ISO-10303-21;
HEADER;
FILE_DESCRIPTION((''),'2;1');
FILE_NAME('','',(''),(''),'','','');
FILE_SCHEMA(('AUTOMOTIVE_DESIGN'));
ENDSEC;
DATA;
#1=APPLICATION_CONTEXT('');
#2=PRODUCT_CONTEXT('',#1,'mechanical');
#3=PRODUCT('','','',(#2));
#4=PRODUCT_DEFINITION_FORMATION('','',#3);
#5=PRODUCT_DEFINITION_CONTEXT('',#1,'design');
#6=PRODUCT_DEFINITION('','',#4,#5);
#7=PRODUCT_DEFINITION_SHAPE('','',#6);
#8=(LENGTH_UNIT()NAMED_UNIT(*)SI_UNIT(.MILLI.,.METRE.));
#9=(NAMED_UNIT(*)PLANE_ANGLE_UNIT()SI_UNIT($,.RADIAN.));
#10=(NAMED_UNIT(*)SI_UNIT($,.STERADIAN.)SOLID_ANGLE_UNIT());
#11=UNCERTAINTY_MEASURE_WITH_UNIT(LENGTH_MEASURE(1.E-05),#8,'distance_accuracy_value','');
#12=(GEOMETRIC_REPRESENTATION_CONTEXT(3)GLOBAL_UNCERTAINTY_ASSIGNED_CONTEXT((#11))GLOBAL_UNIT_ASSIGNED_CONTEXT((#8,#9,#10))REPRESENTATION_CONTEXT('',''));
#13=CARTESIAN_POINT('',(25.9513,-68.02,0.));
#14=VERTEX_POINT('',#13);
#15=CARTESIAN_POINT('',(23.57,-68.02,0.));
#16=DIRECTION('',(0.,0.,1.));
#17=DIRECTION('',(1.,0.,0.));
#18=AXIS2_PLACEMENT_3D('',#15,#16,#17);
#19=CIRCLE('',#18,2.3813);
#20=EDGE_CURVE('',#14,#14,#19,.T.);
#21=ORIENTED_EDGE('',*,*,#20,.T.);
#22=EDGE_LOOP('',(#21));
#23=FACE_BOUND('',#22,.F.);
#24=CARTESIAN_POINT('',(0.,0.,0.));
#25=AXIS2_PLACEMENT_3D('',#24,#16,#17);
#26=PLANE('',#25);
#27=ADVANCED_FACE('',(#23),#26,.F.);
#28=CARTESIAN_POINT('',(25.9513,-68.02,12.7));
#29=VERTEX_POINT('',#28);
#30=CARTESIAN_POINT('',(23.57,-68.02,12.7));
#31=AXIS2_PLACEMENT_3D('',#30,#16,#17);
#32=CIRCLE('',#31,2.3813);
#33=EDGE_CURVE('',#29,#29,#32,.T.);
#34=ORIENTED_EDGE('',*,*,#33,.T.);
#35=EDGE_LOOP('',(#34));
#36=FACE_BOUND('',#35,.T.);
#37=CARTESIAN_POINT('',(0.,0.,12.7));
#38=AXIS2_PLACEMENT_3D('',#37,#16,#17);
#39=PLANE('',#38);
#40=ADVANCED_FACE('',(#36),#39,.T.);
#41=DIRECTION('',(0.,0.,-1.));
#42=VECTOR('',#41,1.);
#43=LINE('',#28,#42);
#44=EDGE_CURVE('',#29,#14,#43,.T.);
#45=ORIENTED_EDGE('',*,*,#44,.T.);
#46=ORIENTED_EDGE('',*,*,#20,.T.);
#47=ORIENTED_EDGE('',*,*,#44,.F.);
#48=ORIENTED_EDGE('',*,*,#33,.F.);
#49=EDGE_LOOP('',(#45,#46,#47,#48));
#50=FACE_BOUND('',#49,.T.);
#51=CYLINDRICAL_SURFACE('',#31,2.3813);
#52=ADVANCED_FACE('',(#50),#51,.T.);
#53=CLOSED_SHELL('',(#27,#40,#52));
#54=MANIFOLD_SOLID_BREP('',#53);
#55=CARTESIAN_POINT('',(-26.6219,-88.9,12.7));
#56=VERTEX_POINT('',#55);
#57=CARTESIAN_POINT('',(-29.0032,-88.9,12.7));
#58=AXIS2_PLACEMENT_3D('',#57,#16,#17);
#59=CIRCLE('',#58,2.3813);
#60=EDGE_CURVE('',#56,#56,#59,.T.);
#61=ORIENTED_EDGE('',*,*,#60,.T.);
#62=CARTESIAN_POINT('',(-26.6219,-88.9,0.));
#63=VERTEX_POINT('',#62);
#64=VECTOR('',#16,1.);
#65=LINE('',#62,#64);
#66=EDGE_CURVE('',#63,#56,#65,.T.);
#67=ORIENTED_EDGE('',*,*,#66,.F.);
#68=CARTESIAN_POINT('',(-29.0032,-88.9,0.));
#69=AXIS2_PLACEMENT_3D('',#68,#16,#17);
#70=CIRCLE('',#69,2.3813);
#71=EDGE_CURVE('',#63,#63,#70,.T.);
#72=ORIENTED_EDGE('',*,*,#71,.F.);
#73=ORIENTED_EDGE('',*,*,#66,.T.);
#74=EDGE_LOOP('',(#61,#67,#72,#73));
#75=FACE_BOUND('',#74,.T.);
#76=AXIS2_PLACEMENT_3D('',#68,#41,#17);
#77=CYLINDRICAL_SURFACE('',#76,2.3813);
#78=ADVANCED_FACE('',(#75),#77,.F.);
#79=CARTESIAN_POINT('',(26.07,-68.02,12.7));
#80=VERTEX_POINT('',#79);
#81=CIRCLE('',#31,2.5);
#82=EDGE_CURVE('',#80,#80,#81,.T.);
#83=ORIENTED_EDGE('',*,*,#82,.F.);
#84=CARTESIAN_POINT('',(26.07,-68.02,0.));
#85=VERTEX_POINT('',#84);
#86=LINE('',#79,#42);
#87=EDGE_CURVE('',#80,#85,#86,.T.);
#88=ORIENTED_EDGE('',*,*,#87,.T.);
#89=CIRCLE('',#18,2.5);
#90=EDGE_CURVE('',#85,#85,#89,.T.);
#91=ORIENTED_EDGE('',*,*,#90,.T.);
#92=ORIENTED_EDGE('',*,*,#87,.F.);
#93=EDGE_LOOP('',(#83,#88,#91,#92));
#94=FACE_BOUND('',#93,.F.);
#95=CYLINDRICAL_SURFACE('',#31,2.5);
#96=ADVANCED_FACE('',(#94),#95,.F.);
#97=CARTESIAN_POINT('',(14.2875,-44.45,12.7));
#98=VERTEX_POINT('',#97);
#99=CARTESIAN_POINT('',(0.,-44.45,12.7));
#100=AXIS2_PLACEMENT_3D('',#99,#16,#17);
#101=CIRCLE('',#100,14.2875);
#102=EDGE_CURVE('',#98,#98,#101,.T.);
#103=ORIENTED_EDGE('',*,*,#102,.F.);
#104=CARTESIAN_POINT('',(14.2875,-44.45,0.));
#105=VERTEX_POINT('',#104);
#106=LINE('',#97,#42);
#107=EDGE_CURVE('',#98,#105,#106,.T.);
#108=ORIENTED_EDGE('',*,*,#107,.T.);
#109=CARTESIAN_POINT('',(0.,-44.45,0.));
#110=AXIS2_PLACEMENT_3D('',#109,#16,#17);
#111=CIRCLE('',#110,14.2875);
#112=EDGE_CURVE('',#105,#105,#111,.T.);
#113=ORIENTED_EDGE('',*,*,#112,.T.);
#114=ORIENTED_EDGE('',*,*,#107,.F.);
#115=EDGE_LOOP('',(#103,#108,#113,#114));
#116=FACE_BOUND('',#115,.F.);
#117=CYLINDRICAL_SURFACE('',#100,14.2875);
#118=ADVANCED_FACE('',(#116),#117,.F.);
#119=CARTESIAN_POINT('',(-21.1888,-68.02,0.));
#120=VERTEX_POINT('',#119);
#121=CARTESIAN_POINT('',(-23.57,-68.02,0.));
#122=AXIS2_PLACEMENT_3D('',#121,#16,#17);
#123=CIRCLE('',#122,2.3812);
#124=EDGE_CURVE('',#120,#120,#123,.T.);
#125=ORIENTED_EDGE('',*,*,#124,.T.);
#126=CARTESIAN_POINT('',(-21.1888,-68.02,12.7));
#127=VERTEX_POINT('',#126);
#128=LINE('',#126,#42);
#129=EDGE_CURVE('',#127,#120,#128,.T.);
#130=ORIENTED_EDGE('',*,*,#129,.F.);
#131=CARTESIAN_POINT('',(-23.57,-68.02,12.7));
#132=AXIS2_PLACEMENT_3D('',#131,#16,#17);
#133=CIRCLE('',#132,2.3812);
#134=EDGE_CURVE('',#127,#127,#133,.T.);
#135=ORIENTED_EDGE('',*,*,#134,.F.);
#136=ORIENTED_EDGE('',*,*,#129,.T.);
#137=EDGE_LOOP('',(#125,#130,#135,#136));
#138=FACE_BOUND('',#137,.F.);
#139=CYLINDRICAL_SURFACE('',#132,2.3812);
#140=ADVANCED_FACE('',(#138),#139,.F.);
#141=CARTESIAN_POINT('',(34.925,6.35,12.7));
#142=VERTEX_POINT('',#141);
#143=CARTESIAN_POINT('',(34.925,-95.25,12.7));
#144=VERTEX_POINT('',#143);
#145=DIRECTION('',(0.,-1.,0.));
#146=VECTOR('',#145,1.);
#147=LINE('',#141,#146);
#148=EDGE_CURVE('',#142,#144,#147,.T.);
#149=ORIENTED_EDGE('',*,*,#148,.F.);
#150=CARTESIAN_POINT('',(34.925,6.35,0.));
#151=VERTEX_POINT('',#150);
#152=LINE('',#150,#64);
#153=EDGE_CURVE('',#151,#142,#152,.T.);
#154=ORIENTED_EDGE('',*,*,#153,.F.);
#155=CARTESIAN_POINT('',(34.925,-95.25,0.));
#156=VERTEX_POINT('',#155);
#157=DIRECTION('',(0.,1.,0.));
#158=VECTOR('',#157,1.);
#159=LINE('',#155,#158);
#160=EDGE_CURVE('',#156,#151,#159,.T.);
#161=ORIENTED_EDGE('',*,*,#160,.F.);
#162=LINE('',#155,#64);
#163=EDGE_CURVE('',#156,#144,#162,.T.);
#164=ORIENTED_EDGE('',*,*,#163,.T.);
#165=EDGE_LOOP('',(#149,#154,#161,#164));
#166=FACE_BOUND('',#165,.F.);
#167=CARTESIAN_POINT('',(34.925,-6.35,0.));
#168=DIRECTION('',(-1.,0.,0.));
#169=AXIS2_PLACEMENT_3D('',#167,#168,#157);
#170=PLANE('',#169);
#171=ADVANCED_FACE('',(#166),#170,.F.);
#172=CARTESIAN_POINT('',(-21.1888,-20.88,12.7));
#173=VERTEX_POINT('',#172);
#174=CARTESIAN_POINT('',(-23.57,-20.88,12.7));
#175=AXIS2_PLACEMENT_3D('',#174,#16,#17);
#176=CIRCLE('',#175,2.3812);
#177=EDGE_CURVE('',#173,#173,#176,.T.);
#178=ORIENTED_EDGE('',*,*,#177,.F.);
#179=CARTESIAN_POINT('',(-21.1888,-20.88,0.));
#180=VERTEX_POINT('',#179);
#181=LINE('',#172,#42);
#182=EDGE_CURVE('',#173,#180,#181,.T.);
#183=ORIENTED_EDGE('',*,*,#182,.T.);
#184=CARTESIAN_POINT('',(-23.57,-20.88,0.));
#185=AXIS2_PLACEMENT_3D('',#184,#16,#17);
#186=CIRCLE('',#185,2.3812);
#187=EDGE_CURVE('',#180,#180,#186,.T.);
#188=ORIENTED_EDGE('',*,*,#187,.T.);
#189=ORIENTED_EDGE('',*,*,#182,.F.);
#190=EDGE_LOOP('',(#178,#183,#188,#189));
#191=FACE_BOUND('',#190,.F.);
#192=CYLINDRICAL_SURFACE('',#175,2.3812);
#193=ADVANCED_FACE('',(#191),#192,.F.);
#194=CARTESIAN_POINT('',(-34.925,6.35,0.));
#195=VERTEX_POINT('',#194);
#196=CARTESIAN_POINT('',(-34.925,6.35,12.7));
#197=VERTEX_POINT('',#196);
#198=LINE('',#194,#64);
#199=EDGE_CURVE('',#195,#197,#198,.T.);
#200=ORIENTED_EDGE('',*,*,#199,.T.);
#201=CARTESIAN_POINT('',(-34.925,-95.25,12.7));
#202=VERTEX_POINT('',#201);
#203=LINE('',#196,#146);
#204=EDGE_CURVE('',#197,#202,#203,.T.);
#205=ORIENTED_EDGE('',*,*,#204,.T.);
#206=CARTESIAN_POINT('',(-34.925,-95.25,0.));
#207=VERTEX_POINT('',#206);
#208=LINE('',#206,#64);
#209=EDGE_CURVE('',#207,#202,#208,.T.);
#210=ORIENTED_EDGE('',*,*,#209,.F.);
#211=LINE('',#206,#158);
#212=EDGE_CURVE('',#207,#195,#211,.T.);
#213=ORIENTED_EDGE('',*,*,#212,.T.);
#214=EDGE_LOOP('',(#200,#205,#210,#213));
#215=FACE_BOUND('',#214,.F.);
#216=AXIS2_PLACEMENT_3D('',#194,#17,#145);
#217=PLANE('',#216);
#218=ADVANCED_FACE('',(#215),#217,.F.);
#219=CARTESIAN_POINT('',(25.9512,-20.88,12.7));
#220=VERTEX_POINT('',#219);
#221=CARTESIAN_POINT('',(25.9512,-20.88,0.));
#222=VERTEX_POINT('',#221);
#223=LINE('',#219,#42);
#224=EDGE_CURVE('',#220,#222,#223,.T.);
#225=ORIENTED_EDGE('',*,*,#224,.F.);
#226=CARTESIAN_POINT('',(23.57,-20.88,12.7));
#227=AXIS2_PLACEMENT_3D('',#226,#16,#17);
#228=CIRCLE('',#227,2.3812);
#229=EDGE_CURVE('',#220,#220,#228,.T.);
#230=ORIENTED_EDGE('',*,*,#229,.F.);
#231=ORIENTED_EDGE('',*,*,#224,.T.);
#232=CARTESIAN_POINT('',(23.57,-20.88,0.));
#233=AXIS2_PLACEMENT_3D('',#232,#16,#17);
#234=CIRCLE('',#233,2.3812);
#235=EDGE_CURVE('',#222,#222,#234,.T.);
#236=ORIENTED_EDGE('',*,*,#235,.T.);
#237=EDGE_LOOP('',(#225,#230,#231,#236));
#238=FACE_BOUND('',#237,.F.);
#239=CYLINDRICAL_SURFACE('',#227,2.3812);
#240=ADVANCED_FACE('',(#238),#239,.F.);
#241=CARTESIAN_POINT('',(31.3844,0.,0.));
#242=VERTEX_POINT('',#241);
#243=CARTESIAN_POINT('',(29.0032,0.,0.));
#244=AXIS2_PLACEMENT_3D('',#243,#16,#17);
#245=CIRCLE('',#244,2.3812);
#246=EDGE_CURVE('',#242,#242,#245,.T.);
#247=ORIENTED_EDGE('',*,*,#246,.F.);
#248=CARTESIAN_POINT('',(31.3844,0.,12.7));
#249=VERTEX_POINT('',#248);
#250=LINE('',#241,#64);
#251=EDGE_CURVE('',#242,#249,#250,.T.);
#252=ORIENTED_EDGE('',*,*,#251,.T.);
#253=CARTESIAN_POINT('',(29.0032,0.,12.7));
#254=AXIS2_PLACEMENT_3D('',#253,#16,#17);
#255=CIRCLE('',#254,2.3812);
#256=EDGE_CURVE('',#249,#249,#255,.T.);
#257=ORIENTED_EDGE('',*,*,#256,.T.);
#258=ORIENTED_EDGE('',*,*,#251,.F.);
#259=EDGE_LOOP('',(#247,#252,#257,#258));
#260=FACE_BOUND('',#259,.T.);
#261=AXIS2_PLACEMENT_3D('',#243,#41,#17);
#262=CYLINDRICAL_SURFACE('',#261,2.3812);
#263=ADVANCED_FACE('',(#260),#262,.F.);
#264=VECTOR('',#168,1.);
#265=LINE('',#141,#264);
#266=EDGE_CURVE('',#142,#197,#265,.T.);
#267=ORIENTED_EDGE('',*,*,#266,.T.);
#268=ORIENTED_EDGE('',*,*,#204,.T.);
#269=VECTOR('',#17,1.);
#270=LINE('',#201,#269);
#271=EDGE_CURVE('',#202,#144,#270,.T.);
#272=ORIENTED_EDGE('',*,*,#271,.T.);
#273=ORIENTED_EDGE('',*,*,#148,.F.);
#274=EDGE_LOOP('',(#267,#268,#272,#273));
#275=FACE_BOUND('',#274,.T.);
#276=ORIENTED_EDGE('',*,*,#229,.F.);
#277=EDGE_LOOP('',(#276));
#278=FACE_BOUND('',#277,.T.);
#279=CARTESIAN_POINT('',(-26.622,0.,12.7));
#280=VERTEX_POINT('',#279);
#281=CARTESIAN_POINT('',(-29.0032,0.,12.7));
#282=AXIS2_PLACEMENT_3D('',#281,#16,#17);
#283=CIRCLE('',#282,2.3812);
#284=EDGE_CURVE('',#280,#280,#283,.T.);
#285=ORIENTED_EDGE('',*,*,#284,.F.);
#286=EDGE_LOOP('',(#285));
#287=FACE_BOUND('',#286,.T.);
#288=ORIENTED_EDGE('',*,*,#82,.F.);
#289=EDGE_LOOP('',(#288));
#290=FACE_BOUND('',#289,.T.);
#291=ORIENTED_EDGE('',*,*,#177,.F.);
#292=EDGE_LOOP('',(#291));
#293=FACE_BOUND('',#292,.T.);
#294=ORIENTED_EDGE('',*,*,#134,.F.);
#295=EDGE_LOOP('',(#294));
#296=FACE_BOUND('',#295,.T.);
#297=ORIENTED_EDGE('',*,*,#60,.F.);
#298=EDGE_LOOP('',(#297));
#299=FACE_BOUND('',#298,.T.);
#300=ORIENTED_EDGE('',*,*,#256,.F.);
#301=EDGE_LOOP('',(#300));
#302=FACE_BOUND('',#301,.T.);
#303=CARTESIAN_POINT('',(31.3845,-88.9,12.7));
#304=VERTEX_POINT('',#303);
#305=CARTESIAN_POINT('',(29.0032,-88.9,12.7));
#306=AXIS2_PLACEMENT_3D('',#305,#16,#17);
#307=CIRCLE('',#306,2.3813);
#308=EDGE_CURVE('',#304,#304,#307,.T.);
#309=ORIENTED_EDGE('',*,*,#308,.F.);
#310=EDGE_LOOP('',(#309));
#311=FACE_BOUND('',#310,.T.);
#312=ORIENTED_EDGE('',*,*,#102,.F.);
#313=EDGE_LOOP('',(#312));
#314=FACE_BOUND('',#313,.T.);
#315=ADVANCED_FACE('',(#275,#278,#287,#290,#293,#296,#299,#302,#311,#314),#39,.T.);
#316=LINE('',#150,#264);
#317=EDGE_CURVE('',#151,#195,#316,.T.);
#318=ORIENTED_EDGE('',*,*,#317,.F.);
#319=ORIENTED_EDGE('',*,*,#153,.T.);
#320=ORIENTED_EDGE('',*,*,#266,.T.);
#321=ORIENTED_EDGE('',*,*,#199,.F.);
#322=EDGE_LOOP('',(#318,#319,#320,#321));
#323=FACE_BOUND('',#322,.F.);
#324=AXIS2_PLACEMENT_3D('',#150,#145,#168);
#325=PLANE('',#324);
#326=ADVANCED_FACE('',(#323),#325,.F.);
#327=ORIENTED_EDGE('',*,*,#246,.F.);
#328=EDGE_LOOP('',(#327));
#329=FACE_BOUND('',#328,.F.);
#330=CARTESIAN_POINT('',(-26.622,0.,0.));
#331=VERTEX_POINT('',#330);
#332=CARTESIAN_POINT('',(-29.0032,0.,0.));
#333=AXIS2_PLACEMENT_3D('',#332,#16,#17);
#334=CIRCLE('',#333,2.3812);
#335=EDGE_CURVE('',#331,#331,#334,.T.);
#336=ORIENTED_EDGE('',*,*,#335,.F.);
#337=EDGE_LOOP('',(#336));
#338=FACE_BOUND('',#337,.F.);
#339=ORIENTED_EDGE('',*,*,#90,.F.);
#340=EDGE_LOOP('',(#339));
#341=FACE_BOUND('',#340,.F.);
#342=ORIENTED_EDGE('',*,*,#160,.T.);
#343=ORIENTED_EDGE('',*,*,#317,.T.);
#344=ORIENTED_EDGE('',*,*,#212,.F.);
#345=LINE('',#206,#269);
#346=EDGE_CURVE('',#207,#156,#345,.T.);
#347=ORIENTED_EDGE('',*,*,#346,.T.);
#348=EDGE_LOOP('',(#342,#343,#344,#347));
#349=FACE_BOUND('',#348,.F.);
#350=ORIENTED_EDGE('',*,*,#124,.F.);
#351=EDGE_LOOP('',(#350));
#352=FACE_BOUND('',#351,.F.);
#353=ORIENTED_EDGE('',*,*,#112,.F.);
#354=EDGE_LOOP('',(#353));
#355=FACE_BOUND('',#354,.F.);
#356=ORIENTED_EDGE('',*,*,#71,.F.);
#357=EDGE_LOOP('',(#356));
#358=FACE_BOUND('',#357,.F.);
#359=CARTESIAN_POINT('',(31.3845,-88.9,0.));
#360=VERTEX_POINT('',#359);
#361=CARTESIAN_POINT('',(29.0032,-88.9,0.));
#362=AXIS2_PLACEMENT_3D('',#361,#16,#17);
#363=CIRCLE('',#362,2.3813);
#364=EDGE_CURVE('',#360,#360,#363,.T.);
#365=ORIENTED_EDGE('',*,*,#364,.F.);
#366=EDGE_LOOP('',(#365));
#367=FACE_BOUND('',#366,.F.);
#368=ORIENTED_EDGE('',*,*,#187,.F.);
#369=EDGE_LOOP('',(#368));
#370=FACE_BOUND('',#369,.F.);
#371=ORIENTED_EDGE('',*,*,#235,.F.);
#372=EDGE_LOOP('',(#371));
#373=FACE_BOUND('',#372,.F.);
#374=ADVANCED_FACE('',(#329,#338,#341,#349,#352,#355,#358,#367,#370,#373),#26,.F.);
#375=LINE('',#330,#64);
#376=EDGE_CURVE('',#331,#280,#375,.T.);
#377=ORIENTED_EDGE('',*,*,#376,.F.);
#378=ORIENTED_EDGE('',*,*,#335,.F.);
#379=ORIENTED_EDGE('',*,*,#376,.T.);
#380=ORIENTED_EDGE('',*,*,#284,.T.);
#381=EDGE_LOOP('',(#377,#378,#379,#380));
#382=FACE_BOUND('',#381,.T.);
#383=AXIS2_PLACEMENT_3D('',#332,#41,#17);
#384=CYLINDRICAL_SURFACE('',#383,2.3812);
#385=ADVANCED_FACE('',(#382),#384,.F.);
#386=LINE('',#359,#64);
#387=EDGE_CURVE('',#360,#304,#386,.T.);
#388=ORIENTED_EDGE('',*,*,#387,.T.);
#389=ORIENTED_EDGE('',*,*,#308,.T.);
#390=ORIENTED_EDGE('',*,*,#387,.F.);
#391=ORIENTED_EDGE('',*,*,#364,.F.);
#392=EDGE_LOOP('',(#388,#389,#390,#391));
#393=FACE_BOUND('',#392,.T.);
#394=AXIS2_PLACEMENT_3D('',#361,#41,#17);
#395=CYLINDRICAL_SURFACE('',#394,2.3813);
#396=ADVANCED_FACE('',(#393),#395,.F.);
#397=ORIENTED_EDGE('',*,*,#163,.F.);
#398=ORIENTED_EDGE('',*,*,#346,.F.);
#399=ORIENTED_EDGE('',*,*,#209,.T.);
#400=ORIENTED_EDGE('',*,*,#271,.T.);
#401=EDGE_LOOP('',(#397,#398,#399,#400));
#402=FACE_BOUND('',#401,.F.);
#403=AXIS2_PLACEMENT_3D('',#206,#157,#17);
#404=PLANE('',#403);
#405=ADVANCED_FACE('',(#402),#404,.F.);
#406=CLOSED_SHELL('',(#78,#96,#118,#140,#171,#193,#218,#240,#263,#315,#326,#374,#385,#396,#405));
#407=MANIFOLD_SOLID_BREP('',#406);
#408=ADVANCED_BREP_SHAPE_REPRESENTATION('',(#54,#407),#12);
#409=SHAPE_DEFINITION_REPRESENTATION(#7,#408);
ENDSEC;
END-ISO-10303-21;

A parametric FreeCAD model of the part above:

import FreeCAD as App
import Part
import Sketcher
Q = App.Units.Quantity


def add_polygon(sketch, points):
    """Adds a closed chain of lines whose ends are joined by coincident constraints."""
    first, n = sketch.GeometryCount, len(points)
    for a, b in zip(points, points[1:] + points[:1]):
        sketch.addGeometry(Part.LineSegment(App.Vector(*a, 0), App.Vector(*b, 0)), False)
    for i in range(n):
        sketch.addConstraint(Sketcher.Constraint("Coincident", first + i, 2, first + (i + 1) % n, 1))

doc = App.newDocument("Part")
body = doc.addObject("PartDesign::Body", "Body")
body.AllowCompound = True

sketch1 = body.newObject("Sketcher::SketchObject", "Sketch")
sketch1.AttachmentSupport = (doc.getObject("XY_Plane"), [""])
sketch1.MapMode = "FlatFace"
add_polygon(sketch1, [(34.925, 6.35), (-34.925, 6.35), (-34.925, -95.25), (34.925, -95.25)])
sketch1.addGeometry(Part.Circle(App.Vector(-29.0032, 0, 0), App.Vector(0, 0, 1), 2.3812), False)
sketch1.addGeometry(Part.Circle(App.Vector(29.0032, 0, 0), App.Vector(0, 0, 1), 2.3812), False)
sketch1.addGeometry(Part.Circle(App.Vector(29.0032, -88.9, 0), App.Vector(0, 0, 1), 2.3813), False)
sketch1.addGeometry(Part.Circle(App.Vector(-29.0032, -88.9, 0), App.Vector(0, 0, 1), 2.3813), False)
sketch1.addConstraint(Sketcher.Constraint("Horizontal", 0))
sketch1.addConstraint(Sketcher.Constraint("Vertical", 1))
sketch1.addConstraint(Sketcher.Constraint("Horizontal", 2))
sketch1.addConstraint(Sketcher.Constraint("Vertical", 3))
sketch1.addConstraint(Sketcher.Constraint("Equal", 4, 5))
sketch1.addConstraint(Sketcher.Constraint("Equal", 5, 6))
sketch1.addConstraint(Sketcher.Constraint("Equal", 6, 7))
sketch1.addConstraint(Sketcher.Constraint("Symmetric", 4, 3, 5, 3, -1, 1))
sketch1.addConstraint(Sketcher.Constraint("Symmetric", 6, 3, 7, 3, -2))
sketch1.addConstraint(Sketcher.Constraint("PointOnObject", 4, 3, -1))
sketch1.addConstraint(Sketcher.Constraint("Vertical", 5, 3, 6, 3))
sketch1.addConstraint(Sketcher.Constraint("DistanceY", 1, 2, 1, 1, Q("4 in")))
sketch1.addConstraint(Sketcher.Constraint("Diameter", 4, Q("0.1875 in")))
sketch1.addConstraint(Sketcher.Constraint("DistanceX", 0, 2, 0, 1, Q("2.75 in")))
sketch1.addConstraint(Sketcher.Constraint("DistanceY", 6, 3, -1, 1, Q("3.5 in")))
sketch1.addConstraint(Sketcher.Constraint("DistanceY", -1, 1, 0, 2, Q("0.25 in")))
sketch1.addConstraint(Sketcher.Constraint("DistanceX", 0, 2, -1, 1, Q("1.375 in")))
sketch1.addConstraint(Sketcher.Constraint("DistanceX", 4, 3, -1, 1, Q("29.0032 mm")))
pad1 = body.newObject("PartDesign::Pad", "Pad")
pad1.Profile = sketch1
pad1.Length = Q("0.5 in")

sketch2 = body.newObject("Sketcher::SketchObject", "Sketch001")
sketch2.AttachmentSupport = (doc.getObject("XY_Plane"), [""])
sketch2.MapMode = "FlatFace"
sketch2.AttachmentOffset = App.Placement(App.Vector(0, 0, 0.5 * 25.4), App.Rotation())
sketch2.addGeometry(Part.Circle(App.Vector(0, -44.45, 0), App.Vector(0, 0, 1), 14.2875), False)
sketch2.addConstraint(Sketcher.Constraint("PointOnObject", 0, 3, -2))
sketch2.addConstraint(Sketcher.Constraint("Diameter", 0, Q("1.125 in")))
sketch2.addConstraint(Sketcher.Constraint("DistanceY", 0, 3, -1, 1, Q("1.75 in")))
pocket1 = body.newObject("PartDesign::Pocket", "Pocket")
pocket1.Profile = sketch2
pocket1.Length = Q("0.5 in")

sketch3 = body.newObject("Sketcher::SketchObject", "Sketch002")
sketch3.AttachmentSupport = (doc.getObject("XY_Plane"), [""])
sketch3.MapMode = "FlatFace"
sketch3.AttachmentOffset = App.Placement(App.Vector(0, 0, 0.5 * 25.4), App.Rotation())
sketch3.addGeometry(Part.Circle(App.Vector(23.57, -68.02, 0), App.Vector(0, 0, 1), 2.5), False)
sketch3.addGeometry(Part.Circle(App.Vector(23.57, -68.02, 0), App.Vector(0, 0, 1), 2.3813), False)
sketch3.addGeometry(Part.Circle(App.Vector(23.57, -20.88, 0), App.Vector(0, 0, 1), 2.3812), False)
sketch3.addGeometry(Part.Circle(App.Vector(-23.57, -68.02, 0), App.Vector(0, 0, 1), 2.3812), False)
sketch3.addGeometry(Part.Circle(App.Vector(-23.57, -20.88, 0), App.Vector(0, 0, 1), 2.3812), False)
sketch3.addConstraint(Sketcher.Constraint("Coincident", 1, 3, 0, 3))
sketch3.addConstraint(Sketcher.Constraint("Equal", 1, 2))
sketch3.addConstraint(Sketcher.Constraint("Equal", 2, 3))
sketch3.addConstraint(Sketcher.Constraint("Equal", 3, 4))
sketch3.addConstraint(Sketcher.Constraint("Symmetric", 0, 3, 3, 3, -2))
sketch3.addConstraint(Sketcher.Constraint("Symmetric", 2, 3, 4, 3, -2))
sketch3.addConstraint(Sketcher.Constraint("Vertical", 1, 3, 2, 3))
sketch3.addConstraint(Sketcher.Constraint("Diameter", 1, Q("0.1875 in")))
sketch3.addConstraint(Sketcher.Constraint("Diameter", 0, Q("5 mm")))
sketch3.addConstraint(Sketcher.Constraint("DistanceY", 0, 3, 2, 3, Q("1.8559 in")))
sketch3.addConstraint(Sketcher.Constraint("DistanceX", 3, 3, 0, 3, Q("1.8559 in")))
sketch3.addConstraint(Sketcher.Constraint("DistanceY", 0, 3, -1, 1, Q("68.02 mm")))
pocket2 = body.newObject("PartDesign::Pocket", "Pocket001")
pocket2.Profile = sketch3
pocket2.Length = Q("1 in")

doc.recompute()
